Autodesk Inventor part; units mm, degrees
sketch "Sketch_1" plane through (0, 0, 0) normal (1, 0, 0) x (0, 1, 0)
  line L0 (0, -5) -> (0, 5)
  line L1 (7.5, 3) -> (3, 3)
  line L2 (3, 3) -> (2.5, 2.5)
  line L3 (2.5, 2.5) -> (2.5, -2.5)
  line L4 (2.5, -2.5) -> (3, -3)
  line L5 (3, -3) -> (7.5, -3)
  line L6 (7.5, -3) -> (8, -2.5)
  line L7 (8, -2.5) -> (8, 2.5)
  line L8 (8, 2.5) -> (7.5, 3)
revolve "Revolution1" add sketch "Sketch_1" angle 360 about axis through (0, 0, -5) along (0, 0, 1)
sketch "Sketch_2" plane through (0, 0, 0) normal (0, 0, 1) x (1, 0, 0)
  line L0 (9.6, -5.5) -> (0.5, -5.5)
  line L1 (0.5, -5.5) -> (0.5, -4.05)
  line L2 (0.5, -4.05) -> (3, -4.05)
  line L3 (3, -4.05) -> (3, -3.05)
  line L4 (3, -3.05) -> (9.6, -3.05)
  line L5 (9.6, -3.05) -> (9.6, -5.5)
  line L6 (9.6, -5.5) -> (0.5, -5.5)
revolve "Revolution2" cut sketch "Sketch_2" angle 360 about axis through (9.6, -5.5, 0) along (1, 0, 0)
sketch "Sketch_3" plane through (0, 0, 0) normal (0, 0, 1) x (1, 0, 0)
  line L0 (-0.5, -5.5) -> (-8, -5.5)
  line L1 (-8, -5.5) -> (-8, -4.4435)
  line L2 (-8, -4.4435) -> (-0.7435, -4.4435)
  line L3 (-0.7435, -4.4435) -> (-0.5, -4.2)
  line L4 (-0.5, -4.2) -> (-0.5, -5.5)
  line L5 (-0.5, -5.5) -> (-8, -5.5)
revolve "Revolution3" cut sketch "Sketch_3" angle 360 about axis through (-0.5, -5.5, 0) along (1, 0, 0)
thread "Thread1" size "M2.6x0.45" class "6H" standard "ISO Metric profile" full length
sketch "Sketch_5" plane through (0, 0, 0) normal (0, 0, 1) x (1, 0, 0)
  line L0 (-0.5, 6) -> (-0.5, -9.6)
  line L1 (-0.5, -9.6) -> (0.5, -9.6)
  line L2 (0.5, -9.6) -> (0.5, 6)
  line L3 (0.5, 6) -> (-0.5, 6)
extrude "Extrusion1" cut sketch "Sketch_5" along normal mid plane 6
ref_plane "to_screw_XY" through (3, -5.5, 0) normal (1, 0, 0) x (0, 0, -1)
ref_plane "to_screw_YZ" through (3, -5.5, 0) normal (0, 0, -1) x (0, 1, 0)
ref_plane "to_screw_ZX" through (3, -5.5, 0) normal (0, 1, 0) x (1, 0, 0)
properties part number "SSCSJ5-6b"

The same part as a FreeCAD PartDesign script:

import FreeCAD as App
import Part
import Sketcher
from FreeCAD import Vector
Q = App.Units.Quantity


def add_polygon(sketch, points):
    """Adds a closed chain of lines whose ends are joined by coincident constraints."""
    first, n = sketch.GeometryCount, len(points)
    for a, b in zip(points, points[1:] + points[:1]):
        sketch.addGeometry(Part.LineSegment(App.Vector(*a, 0), App.Vector(*b, 0)), False)
    for i in range(n):
        sketch.addConstraint(Sketcher.Constraint("Coincident", first + i, 2, first + (i + 1) % n, 1))

doc = App.newDocument("Part")
body = doc.addObject("PartDesign::Body", "Body")

# Sketch on YZ plane
sketch1 = body.newObject("Sketcher::SketchObject", "Sketch")
sketch1.AttachmentSupport = (doc.getObject("YZ_Plane"), [""])
sketch1.MapMode = "FlatFace"
add_polygon(sketch1, [(8, 2.5), (7.5, 3), (3, 3), (2.5, 2.5), (2.5, -2.5), (3, -3), (7.5, -3), (8, -2.5)])  # lines 0-7
sketch1.addConstraint([
    Sketcher.Constraint("Horizontal", 1),
    Sketcher.Constraint("Vertical", 3),
    Sketcher.Constraint("Horizontal", 5),
    Sketcher.Constraint("Vertical", 7),
    Sketcher.Constraint("Symmetric", 1, 2, 4, 2, -1),
    Sketcher.Constraint("Perpendicular", 0, 2),
    Sketcher.Constraint("Perpendicular", 2, 4),
    Sketcher.Constraint("Perpendicular", 4, 6),
    Sketcher.Constraint("Horizontal", 3, 2, 6, 2),
    Sketcher.Constraint("Horizontal", 2, 2, 7, 2),
    Sketcher.Constraint("Vertical", 0, 2, 5, 2),
    Sketcher.Constraint("DistanceY", 3, 2, 3, 1, 5.0),
    Sketcher.Constraint("DistanceX", 1, 2, 1, 1, 4.5),
    Sketcher.Constraint("DistanceY", -1, 1, 0, 2, 3.0),
    Sketcher.Constraint("DistanceX", -1, 1, 1, 2, 3.0),
])
revolution = body.newObject("PartDesign::Revolution", "Revolution")
revolution.Profile = sketch1
revolution.ReferenceAxis = (sketch1, ["V_Axis"])
revolution.Angle = 360

# Sketch on XY plane
sketch2 = body.newObject("Sketcher::SketchObject", "Sketch001")
sketch2.AttachmentSupport = (doc.getObject("XY_Plane"), [""])
sketch2.MapMode = "FlatFace"
add_polygon(sketch2, [(0.5, -5.5), (9.6, -5.5), (9.6, -3), (3, -3), (3, -4), (0.5, -4)])  # lines 0-5
sketch2.addGeometry(Part.LineSegment(Vector(0.5, -5.5, 0), Vector(9.6, -5.5, 0)), True)  # axis
sketch2.addConstraint([
    Sketcher.Constraint("Horizontal", 0),
    Sketcher.Constraint("Vertical", 1),
    Sketcher.Constraint("Horizontal", 2),
    Sketcher.Constraint("Vertical", 3),
    Sketcher.Constraint("Horizontal", 4),
    Sketcher.Constraint("Vertical", 5),
    Sketcher.Constraint("Horizontal", 6),
    Sketcher.Constraint("Coincident", 6, 1, 5, 2),
    Sketcher.Constraint("Vertical", 1, 2, 6, 2),
    Sketcher.Constraint("DistanceY", 3, 2, 3, 1, 1.0),
    Sketcher.Constraint("DistanceX", 0, 1, 0, 2, 9.1),
    Sketcher.Constraint("DistanceX", 2, 2, 2, 1, 6.6),
    Sketcher.Constraint("DistanceX", -1, 1, 2, 2, 3.0),
    Sketcher.Constraint("DistanceY", 1, 1, 1, 2, 2.45),
    Sketcher.Constraint("DistanceY", 0, 2, -1, 1, 5.5),
])
groove = body.newObject("PartDesign::Groove", "Groove")
groove.Profile = sketch2
groove.ReferenceAxis = (sketch2, ["Axis0"])
groove.Angle = 360

# Sketch on XY plane
sketch3 = body.newObject("Sketcher::SketchObject", "Sketch002")
sketch3.AttachmentSupport = (doc.getObject("XY_Plane"), [""])
sketch3.MapMode = "FlatFace"
add_polygon(sketch3, [(-8, -5.5), (-0.5, -5.5), (-0.5, -4.2), (-0.74, -4.44), (-8, -4.44)])  # lines 0-4
sketch3.addGeometry(Part.LineSegment(Vector(-8, -5.5, 0), Vector(-0.5, -5.5, 0)), True)  # axis
sketch3.addConstraint([
    Sketcher.Constraint("Horizontal", 0),
    Sketcher.Constraint("Vertical", 1),
    Sketcher.Constraint("Horizontal", 3),
    Sketcher.Constraint("Vertical", 4),
    Sketcher.Constraint("Horizontal", 5),
    Sketcher.Constraint("Coincident", 5, 1, 4, 2),
    Sketcher.Constraint("Vertical", 1, 2, 5, 2),
    Sketcher.Constraint("Angle", 2, Q("-135 deg")),
    Sketcher.Constraint("DistanceX", 0, 1, 0, 2, 7.5),
    Sketcher.Constraint("DistanceY", 1, 1, 1, 2, 1.3),
    Sketcher.Constraint("DistanceX", 3, 2, -1, 1, 8.0),
    Sketcher.Constraint("DistanceY", 0, 2, -1, 1, 5.5),
    Sketcher.Constraint("DistanceX", 3, 2, 3, 1, 7.2565),
])
groove2 = body.newObject("PartDesign::Groove", "Groove001")
groove2.Profile = sketch3
groove2.ReferenceAxis = (sketch3, ["Axis0"])
groove2.Angle = 360

# Sketch on XY plane
sketch4 = body.newObject("Sketcher::SketchObject", "Sketch003")
sketch4.AttachmentSupport = (doc.getObject("XY_Plane"), [""])
sketch4.MapMode = "FlatFace"
add_polygon(sketch4, [(0.5, 6), (-0.5, 6), (-0.5, -9.6), (0.5, -9.6)])  # lines 0-3
sketch4.addConstraint([
    Sketcher.Constraint("Horizontal", 0),
    Sketcher.Constraint("Vertical", 1),
    Sketcher.Constraint("Horizontal", 2),
    Sketcher.Constraint("Vertical", 3),
    Sketcher.Constraint("DistanceX", 0, 2, 0, 1, 1.0),
    Sketcher.Constraint("DistanceY", 1, 2, 1, 1, 15.6),
    Sketcher.Constraint("DistanceY", -1, 1, 0, 2, 6.0),
    Sketcher.Constraint("DistanceX", 0, 2, -1, 1, 0.5),
])
pocket1 = body.newObject("PartDesign::Pocket", "Pocket")
pocket1.Profile = sketch4
pocket1.Length = 6
pocket1.Midplane = True

doc.recompute()
